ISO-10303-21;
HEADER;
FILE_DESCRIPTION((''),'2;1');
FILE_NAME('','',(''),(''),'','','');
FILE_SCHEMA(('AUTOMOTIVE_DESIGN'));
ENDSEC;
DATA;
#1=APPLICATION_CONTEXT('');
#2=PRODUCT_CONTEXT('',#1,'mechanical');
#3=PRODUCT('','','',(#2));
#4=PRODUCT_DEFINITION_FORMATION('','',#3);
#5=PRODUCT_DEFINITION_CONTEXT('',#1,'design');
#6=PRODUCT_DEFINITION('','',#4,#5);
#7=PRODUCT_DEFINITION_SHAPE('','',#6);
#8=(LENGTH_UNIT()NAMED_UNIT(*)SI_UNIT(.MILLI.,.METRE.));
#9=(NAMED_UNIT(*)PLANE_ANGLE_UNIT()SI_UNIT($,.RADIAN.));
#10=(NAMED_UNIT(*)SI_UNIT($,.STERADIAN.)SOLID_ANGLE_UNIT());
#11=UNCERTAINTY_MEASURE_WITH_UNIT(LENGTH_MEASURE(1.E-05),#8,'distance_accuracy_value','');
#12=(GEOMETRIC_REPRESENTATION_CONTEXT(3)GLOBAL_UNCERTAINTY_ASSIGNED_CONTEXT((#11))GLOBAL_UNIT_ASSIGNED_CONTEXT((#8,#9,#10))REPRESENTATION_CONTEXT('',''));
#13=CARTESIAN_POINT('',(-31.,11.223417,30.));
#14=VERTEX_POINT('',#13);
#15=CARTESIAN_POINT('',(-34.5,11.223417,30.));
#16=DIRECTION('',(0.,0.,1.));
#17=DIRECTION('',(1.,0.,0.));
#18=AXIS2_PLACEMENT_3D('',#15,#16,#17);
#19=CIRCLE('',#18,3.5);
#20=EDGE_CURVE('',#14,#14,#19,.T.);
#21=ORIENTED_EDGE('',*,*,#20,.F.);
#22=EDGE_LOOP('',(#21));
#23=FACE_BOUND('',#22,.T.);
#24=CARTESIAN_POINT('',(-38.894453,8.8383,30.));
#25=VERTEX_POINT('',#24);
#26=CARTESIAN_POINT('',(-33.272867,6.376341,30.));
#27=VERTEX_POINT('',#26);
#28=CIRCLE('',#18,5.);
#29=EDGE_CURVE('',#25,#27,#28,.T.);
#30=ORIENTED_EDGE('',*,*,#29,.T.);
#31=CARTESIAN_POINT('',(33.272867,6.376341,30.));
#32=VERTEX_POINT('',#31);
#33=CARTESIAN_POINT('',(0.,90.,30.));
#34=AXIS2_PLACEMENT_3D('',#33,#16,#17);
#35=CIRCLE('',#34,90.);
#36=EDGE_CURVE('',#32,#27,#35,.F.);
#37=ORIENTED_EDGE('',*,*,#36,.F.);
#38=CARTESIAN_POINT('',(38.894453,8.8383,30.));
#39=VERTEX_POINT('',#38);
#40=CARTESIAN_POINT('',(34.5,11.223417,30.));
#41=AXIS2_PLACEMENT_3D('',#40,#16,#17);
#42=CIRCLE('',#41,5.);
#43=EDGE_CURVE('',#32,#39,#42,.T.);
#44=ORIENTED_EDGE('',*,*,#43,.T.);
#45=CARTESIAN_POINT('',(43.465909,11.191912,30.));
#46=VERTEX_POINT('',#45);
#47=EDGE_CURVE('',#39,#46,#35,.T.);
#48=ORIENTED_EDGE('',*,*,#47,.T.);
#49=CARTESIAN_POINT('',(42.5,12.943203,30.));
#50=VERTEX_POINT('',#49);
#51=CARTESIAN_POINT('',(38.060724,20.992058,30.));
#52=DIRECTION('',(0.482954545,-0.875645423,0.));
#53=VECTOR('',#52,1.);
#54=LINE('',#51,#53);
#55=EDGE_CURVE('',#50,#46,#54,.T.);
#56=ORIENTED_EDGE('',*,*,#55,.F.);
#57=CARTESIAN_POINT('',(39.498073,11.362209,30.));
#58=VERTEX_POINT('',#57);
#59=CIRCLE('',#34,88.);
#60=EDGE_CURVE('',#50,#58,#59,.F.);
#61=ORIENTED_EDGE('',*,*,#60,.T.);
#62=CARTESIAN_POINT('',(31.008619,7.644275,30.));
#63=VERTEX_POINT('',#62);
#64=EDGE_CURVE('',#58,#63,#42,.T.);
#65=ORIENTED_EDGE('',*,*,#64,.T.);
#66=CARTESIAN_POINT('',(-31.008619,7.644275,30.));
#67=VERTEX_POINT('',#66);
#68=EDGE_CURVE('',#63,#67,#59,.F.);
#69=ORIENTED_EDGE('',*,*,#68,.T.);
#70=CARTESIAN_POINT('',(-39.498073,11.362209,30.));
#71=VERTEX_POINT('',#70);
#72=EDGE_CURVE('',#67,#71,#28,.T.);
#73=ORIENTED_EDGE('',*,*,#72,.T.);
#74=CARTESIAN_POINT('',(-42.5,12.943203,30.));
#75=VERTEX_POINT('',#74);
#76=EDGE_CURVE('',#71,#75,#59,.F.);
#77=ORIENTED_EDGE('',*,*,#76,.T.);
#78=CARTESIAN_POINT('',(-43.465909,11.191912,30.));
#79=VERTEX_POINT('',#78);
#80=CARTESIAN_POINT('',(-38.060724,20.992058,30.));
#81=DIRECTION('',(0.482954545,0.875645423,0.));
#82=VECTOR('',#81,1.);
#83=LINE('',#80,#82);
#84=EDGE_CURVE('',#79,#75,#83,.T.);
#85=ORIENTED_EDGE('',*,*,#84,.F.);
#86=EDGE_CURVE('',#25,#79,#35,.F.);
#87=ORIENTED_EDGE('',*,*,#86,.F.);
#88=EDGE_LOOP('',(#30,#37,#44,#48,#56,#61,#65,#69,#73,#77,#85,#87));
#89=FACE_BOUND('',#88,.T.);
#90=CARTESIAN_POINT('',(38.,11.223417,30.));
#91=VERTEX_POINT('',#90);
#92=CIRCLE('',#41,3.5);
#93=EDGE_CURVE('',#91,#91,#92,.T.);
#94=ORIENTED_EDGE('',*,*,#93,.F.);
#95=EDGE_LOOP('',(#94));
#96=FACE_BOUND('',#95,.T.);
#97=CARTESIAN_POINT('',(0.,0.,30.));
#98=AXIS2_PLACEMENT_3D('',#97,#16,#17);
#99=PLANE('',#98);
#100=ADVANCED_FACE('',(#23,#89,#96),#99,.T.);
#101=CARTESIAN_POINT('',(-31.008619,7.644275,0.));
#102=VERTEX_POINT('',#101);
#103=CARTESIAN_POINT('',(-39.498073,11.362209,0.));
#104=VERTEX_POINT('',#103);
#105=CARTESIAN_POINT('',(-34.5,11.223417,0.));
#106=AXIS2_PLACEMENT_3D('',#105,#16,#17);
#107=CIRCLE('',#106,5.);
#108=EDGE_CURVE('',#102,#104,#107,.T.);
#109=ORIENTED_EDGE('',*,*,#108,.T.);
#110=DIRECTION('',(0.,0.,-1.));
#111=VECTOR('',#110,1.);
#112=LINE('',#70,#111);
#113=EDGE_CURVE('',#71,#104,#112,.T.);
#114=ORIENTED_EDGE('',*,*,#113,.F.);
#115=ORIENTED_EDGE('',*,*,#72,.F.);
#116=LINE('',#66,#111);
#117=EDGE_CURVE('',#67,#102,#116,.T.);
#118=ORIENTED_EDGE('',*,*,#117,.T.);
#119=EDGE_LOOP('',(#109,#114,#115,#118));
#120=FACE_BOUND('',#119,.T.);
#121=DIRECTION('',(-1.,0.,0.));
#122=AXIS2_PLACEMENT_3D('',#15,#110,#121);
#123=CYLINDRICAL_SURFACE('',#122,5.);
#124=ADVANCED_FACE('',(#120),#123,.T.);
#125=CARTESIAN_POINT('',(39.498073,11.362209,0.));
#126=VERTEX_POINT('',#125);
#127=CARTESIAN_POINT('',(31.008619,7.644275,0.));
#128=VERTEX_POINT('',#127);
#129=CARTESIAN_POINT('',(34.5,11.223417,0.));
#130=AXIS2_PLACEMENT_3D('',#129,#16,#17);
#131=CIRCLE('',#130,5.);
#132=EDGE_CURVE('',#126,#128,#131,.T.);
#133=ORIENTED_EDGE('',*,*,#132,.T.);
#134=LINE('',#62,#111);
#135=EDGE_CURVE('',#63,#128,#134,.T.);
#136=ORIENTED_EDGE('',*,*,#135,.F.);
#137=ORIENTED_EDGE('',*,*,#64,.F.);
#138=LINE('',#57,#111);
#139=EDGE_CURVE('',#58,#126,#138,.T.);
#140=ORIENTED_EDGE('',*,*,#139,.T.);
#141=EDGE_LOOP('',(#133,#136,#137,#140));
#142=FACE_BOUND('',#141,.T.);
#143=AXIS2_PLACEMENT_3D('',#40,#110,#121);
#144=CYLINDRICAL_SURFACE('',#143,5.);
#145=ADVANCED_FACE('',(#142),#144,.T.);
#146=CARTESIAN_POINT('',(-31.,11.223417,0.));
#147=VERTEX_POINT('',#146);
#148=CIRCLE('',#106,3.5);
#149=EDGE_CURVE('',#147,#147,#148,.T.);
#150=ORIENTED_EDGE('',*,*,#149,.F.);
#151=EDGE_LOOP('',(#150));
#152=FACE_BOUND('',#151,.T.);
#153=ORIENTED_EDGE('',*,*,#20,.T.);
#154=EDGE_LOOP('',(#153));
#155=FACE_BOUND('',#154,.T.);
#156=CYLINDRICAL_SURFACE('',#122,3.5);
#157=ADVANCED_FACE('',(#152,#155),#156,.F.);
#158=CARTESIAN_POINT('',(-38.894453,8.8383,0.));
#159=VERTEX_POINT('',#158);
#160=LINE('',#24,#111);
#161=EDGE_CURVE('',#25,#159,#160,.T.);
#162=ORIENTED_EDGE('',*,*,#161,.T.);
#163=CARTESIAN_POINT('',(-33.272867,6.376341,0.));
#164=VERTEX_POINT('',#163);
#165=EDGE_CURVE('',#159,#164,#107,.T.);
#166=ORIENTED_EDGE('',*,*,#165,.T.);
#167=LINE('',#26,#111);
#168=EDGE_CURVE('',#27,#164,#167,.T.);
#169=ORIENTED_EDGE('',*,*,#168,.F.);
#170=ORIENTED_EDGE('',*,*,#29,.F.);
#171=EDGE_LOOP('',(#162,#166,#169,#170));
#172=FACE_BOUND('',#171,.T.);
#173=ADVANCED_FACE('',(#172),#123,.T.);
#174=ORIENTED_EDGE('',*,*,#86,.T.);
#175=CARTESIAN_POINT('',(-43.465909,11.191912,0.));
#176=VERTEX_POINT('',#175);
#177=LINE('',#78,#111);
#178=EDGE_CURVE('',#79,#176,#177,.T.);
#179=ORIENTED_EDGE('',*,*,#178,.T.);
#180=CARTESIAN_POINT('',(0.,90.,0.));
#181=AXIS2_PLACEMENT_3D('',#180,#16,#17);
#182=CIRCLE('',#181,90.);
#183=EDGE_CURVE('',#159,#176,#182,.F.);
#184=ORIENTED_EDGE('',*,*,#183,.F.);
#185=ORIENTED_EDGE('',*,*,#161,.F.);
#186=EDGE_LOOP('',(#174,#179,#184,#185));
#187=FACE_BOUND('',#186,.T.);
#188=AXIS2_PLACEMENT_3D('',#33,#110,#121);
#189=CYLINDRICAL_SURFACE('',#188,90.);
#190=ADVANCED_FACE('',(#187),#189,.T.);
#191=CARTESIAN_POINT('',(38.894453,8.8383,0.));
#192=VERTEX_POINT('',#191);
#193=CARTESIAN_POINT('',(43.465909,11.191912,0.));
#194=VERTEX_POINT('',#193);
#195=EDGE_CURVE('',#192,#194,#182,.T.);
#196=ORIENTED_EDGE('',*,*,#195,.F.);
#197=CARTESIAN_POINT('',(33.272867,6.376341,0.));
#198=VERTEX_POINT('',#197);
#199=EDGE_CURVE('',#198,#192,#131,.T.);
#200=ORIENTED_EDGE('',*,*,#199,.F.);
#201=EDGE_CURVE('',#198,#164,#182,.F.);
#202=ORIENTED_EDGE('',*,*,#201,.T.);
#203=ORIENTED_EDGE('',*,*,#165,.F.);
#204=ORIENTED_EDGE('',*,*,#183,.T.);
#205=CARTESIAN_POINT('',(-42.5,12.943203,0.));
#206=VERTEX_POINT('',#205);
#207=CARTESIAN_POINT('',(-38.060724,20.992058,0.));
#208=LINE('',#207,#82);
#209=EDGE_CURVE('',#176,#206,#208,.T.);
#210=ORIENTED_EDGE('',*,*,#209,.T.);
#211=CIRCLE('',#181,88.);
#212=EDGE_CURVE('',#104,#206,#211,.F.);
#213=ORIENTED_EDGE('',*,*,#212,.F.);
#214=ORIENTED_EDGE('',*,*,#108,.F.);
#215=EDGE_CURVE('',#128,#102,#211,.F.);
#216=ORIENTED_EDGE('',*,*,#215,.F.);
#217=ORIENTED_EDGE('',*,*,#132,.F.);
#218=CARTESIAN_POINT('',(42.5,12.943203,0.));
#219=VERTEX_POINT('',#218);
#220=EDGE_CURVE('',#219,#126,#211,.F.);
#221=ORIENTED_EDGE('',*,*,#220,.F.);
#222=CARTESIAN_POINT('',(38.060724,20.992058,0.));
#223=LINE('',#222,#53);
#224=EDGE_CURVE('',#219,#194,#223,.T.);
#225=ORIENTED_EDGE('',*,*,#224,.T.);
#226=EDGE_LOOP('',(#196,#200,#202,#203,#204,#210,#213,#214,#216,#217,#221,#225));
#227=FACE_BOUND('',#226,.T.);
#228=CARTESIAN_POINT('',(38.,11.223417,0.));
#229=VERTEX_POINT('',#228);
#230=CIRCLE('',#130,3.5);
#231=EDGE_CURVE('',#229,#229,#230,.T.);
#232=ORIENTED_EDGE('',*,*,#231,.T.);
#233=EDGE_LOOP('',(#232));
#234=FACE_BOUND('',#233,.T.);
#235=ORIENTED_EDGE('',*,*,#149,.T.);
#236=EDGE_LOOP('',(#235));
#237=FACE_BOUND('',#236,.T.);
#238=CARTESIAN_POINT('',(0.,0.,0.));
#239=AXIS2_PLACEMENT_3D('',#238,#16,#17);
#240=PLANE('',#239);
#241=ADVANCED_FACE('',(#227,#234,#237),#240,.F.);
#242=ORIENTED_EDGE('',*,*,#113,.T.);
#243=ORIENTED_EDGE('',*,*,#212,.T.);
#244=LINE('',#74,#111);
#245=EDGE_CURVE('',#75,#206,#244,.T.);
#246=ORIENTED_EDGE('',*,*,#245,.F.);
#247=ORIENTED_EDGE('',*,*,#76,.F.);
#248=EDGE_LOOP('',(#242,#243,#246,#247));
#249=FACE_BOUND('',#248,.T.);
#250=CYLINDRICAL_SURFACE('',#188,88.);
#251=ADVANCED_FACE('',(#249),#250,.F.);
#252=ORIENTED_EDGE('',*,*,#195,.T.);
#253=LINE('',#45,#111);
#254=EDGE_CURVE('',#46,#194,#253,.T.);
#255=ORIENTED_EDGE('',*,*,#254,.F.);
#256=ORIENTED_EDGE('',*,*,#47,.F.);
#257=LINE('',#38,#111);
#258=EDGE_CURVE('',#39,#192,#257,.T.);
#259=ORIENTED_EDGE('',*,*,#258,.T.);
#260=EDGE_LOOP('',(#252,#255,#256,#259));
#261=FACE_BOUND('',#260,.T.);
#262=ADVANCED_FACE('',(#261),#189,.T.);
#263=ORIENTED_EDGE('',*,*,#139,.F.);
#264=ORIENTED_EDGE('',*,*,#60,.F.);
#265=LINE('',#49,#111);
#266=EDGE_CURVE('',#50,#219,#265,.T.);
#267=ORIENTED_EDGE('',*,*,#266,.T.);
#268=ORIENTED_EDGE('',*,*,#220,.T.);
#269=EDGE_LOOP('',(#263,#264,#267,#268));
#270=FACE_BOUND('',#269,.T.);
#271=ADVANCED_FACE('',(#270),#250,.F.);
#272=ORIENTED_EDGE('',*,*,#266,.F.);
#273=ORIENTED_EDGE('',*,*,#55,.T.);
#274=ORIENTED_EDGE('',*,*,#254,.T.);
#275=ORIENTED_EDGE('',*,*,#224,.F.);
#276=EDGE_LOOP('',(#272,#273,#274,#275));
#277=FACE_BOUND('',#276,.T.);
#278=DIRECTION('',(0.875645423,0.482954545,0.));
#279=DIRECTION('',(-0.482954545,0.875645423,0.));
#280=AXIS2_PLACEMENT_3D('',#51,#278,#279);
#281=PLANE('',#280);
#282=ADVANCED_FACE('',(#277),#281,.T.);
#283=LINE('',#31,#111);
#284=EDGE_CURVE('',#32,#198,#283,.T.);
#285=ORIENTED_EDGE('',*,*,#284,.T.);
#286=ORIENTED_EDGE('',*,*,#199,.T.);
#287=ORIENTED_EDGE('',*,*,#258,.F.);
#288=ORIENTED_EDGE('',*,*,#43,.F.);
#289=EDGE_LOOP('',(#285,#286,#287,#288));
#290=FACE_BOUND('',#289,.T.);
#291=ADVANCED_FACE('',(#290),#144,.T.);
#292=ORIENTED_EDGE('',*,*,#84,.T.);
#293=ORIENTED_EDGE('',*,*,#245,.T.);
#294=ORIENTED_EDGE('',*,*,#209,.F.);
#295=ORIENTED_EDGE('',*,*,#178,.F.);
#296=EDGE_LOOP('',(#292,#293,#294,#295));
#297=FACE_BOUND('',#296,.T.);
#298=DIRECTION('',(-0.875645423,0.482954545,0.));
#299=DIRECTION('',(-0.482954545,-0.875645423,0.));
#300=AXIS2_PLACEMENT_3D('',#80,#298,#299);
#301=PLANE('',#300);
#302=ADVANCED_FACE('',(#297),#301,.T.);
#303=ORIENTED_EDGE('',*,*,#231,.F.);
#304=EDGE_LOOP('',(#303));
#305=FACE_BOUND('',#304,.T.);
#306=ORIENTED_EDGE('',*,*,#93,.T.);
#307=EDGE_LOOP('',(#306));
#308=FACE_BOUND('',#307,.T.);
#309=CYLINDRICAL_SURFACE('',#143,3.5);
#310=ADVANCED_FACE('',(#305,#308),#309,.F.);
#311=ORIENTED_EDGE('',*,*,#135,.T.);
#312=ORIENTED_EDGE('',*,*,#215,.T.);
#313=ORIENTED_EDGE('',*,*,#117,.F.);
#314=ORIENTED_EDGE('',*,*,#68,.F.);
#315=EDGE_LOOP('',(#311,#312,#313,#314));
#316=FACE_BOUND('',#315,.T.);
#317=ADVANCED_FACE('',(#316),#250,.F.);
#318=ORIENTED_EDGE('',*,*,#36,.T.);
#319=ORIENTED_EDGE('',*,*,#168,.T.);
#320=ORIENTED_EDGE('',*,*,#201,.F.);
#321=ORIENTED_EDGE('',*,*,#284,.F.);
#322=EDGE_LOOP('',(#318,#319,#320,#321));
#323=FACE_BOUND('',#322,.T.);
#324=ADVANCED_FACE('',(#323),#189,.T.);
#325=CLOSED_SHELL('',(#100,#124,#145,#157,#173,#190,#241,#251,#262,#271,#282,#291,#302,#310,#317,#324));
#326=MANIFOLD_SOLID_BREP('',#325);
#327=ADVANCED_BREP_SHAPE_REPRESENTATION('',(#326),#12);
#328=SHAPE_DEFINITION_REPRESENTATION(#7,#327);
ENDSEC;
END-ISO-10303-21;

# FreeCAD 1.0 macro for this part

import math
import FreeCAD as App
import Part
import Sketcher
from FreeCAD import Vector

doc = App.newDocument("Part")
body = doc.addObject("PartDesign::Body", "Body")

# Sketch on XY plane
sketch1 = body.newObject("Sketcher::SketchObject", "Sketch")
sketch1.AttachmentSupport = (doc.getObject("XY_Plane"), [""])
sketch1.MapMode = "FlatFace"
sketch1.addGeometry(Part.ArcOfCircle(Part.Circle(Vector(34.5, 11.2, 0), Vector(0, 0, 1), 5), math.radians(-104), math.radians(-28)), False)
sketch1.addGeometry(Part.ArcOfCircle(Part.Circle(Vector(0, 90, 0), Vector(0, 0, 1), 90), math.radians(-64.4), math.radians(-61.12)), False)
sketch1.addGeometry(Part.LineSegment(Vector(43.5, 11.2, 0), Vector(42.5, 12.9, 0)), False)
sketch1.addGeometry(Part.ArcOfCircle(Part.Circle(Vector(0, 90, 0), Vector(0, 0, 1), 88), math.radians(-63.33), math.radians(-61.12)), False)
sketch1.addGeometry(Part.ArcOfCircle(Part.Circle(Vector(34.5, 11.2, 0), Vector(0, 0, 1), 5), math.radians(2), math.radians(226)), False)
sketch1.addGeometry(Part.ArcOfCircle(Part.Circle(Vector(0, 90, 0), Vector(0, 0, 1), 88), math.radians(-111), math.radians(-69)), False)
sketch1.addGeometry(Part.ArcOfCircle(Part.Circle(Vector(-34.5, 11.2, 0), Vector(0, 0, 1), 5), math.radians(-46), math.radians(178)), False)
sketch1.addGeometry(Part.ArcOfCircle(Part.Circle(Vector(0, 90, 0), Vector(0, 0, 1), 88), math.radians(-118.88), math.radians(-116.67)), False)
sketch1.addGeometry(Part.LineSegment(Vector(-42.5, 12.9, 0), Vector(-43.5, 11.2, 0)), False)
sketch1.addGeometry(Part.ArcOfCircle(Part.Circle(Vector(0, 90, 0), Vector(0, 0, 1), 90), math.radians(-118.88), math.radians(-115.6)), False)
sketch1.addGeometry(Part.ArcOfCircle(Part.Circle(Vector(-34.5, 11.2, 0), Vector(0, 0, 1), 5), math.radians(-152), math.radians(-76)), False)
sketch1.addGeometry(Part.ArcOfCircle(Part.Circle(Vector(0, 90, 0), Vector(0, 0, 1), 90), math.radians(-112), math.radians(-68)), False)
sketch1.addGeometry(Part.Circle(Vector(-34.5, 11.2, 0), Vector(0, 0, 1), 3.5), False)
sketch1.addGeometry(Part.Circle(Vector(34.5, 11.2, 0), Vector(0, 0, 1), 3.5), False)
sketch1.addConstraint(Sketcher.Constraint("Coincident", 0, 2, 1, 1))
sketch1.addConstraint(Sketcher.Constraint("Coincident", 1, 2, 2, 1))
sketch1.addConstraint(Sketcher.Constraint("Coincident", 2, 2, 3, 2))
sketch1.addConstraint(Sketcher.Constraint("Coincident", 3, 1, 4, 1))
sketch1.addConstraint(Sketcher.Constraint("Coincident", 4, 2, 5, 2))
sketch1.addConstraint(Sketcher.Constraint("Coincident", 5, 1, 6, 1))
sketch1.addConstraint(Sketcher.Constraint("Coincident", 6, 2, 7, 2))
sketch1.addConstraint(Sketcher.Constraint("Coincident", 7, 1, 8, 1))
sketch1.addConstraint(Sketcher.Constraint("Coincident", 8, 2, 9, 1))
sketch1.addConstraint(Sketcher.Constraint("Coincident", 9, 2, 10, 1))
sketch1.addConstraint(Sketcher.Constraint("Coincident", 10, 2, 11, 1))
sketch1.addConstraint(Sketcher.Constraint("Coincident", 11, 2, 0, 1))
sketch1.addConstraint(Sketcher.Constraint("Coincident", 3, 3, 1, 3))
sketch1.addConstraint(Sketcher.Constraint("Coincident", 4, 3, 0, 3))
sketch1.addConstraint(Sketcher.Constraint("Coincident", 5, 3, 1, 3))
sketch1.addConstraint(Sketcher.Constraint("Coincident", 7, 3, 1, 3))
sketch1.addConstraint(Sketcher.Constraint("Coincident", 9, 3, 1, 3))
sketch1.addConstraint(Sketcher.Constraint("Coincident", 10, 3, 6, 3))
sketch1.addConstraint(Sketcher.Constraint("Coincident", 11, 3, 1, 3))
sketch1.addConstraint(Sketcher.Constraint("Coincident", 12, 3, 6, 3))
sketch1.addConstraint(Sketcher.Constraint("Coincident", 13, 3, 0, 3))
sketch1.addConstraint(Sketcher.Constraint("Equal", 0, 4))
sketch1.addConstraint(Sketcher.Constraint("Equal", 3, 5))
sketch1.addConstraint(Sketcher.Constraint("Equal", 4, 6))
sketch1.addConstraint(Sketcher.Constraint("Equal", 5, 7))
sketch1.addConstraint(Sketcher.Constraint("Equal", 1, 9))
sketch1.addConstraint(Sketcher.Constraint("Equal", 6, 10))
sketch1.addConstraint(Sketcher.Constraint("Equal", 9, 11))
sketch1.addConstraint(Sketcher.Constraint("Equal", 12, 13))
sketch1.addConstraint(Sketcher.Constraint("Symmetric", 0, 3, 6, 3, -2))
sketch1.addConstraint(Sketcher.Constraint("Symmetric", 2, 2, 7, 1, -2))
sketch1.addConstraint(Sketcher.Constraint("Horizontal", 1, 2, 8, 2))
sketch1.addConstraint(Sketcher.Constraint("Diameter", 12, 7.0))
sketch1.addConstraint(Sketcher.Constraint("Radius", 0, 5.0))
sketch1.addConstraint(Sketcher.Constraint("Radius", 1, 89.999999))
sketch1.addConstraint(Sketcher.Constraint("Radius", 3, 87.999999))
sketch1.addConstraint(Sketcher.Constraint("DistanceY", -1, 1, 1, 3, 89.999999))
sketch1.addConstraint(Sketcher.Constraint("DistanceX", 6, 3, 4, 3, 69.0))
sketch1.addConstraint(Sketcher.Constraint("DistanceX", 0, 3, 2, 2, 8.0))
sketch1.addConstraint(Sketcher.Constraint("DistanceY", -1, 1, 0, 2, 8.8383))
sketch1.addConstraint(Sketcher.Constraint("DistanceX", -1, 1, 1, 2, 43.465909))
pad1 = body.newObject("PartDesign::Pad", "Pad")
pad1.Profile = sketch1
pad1.Length = 30

doc.recompute()
